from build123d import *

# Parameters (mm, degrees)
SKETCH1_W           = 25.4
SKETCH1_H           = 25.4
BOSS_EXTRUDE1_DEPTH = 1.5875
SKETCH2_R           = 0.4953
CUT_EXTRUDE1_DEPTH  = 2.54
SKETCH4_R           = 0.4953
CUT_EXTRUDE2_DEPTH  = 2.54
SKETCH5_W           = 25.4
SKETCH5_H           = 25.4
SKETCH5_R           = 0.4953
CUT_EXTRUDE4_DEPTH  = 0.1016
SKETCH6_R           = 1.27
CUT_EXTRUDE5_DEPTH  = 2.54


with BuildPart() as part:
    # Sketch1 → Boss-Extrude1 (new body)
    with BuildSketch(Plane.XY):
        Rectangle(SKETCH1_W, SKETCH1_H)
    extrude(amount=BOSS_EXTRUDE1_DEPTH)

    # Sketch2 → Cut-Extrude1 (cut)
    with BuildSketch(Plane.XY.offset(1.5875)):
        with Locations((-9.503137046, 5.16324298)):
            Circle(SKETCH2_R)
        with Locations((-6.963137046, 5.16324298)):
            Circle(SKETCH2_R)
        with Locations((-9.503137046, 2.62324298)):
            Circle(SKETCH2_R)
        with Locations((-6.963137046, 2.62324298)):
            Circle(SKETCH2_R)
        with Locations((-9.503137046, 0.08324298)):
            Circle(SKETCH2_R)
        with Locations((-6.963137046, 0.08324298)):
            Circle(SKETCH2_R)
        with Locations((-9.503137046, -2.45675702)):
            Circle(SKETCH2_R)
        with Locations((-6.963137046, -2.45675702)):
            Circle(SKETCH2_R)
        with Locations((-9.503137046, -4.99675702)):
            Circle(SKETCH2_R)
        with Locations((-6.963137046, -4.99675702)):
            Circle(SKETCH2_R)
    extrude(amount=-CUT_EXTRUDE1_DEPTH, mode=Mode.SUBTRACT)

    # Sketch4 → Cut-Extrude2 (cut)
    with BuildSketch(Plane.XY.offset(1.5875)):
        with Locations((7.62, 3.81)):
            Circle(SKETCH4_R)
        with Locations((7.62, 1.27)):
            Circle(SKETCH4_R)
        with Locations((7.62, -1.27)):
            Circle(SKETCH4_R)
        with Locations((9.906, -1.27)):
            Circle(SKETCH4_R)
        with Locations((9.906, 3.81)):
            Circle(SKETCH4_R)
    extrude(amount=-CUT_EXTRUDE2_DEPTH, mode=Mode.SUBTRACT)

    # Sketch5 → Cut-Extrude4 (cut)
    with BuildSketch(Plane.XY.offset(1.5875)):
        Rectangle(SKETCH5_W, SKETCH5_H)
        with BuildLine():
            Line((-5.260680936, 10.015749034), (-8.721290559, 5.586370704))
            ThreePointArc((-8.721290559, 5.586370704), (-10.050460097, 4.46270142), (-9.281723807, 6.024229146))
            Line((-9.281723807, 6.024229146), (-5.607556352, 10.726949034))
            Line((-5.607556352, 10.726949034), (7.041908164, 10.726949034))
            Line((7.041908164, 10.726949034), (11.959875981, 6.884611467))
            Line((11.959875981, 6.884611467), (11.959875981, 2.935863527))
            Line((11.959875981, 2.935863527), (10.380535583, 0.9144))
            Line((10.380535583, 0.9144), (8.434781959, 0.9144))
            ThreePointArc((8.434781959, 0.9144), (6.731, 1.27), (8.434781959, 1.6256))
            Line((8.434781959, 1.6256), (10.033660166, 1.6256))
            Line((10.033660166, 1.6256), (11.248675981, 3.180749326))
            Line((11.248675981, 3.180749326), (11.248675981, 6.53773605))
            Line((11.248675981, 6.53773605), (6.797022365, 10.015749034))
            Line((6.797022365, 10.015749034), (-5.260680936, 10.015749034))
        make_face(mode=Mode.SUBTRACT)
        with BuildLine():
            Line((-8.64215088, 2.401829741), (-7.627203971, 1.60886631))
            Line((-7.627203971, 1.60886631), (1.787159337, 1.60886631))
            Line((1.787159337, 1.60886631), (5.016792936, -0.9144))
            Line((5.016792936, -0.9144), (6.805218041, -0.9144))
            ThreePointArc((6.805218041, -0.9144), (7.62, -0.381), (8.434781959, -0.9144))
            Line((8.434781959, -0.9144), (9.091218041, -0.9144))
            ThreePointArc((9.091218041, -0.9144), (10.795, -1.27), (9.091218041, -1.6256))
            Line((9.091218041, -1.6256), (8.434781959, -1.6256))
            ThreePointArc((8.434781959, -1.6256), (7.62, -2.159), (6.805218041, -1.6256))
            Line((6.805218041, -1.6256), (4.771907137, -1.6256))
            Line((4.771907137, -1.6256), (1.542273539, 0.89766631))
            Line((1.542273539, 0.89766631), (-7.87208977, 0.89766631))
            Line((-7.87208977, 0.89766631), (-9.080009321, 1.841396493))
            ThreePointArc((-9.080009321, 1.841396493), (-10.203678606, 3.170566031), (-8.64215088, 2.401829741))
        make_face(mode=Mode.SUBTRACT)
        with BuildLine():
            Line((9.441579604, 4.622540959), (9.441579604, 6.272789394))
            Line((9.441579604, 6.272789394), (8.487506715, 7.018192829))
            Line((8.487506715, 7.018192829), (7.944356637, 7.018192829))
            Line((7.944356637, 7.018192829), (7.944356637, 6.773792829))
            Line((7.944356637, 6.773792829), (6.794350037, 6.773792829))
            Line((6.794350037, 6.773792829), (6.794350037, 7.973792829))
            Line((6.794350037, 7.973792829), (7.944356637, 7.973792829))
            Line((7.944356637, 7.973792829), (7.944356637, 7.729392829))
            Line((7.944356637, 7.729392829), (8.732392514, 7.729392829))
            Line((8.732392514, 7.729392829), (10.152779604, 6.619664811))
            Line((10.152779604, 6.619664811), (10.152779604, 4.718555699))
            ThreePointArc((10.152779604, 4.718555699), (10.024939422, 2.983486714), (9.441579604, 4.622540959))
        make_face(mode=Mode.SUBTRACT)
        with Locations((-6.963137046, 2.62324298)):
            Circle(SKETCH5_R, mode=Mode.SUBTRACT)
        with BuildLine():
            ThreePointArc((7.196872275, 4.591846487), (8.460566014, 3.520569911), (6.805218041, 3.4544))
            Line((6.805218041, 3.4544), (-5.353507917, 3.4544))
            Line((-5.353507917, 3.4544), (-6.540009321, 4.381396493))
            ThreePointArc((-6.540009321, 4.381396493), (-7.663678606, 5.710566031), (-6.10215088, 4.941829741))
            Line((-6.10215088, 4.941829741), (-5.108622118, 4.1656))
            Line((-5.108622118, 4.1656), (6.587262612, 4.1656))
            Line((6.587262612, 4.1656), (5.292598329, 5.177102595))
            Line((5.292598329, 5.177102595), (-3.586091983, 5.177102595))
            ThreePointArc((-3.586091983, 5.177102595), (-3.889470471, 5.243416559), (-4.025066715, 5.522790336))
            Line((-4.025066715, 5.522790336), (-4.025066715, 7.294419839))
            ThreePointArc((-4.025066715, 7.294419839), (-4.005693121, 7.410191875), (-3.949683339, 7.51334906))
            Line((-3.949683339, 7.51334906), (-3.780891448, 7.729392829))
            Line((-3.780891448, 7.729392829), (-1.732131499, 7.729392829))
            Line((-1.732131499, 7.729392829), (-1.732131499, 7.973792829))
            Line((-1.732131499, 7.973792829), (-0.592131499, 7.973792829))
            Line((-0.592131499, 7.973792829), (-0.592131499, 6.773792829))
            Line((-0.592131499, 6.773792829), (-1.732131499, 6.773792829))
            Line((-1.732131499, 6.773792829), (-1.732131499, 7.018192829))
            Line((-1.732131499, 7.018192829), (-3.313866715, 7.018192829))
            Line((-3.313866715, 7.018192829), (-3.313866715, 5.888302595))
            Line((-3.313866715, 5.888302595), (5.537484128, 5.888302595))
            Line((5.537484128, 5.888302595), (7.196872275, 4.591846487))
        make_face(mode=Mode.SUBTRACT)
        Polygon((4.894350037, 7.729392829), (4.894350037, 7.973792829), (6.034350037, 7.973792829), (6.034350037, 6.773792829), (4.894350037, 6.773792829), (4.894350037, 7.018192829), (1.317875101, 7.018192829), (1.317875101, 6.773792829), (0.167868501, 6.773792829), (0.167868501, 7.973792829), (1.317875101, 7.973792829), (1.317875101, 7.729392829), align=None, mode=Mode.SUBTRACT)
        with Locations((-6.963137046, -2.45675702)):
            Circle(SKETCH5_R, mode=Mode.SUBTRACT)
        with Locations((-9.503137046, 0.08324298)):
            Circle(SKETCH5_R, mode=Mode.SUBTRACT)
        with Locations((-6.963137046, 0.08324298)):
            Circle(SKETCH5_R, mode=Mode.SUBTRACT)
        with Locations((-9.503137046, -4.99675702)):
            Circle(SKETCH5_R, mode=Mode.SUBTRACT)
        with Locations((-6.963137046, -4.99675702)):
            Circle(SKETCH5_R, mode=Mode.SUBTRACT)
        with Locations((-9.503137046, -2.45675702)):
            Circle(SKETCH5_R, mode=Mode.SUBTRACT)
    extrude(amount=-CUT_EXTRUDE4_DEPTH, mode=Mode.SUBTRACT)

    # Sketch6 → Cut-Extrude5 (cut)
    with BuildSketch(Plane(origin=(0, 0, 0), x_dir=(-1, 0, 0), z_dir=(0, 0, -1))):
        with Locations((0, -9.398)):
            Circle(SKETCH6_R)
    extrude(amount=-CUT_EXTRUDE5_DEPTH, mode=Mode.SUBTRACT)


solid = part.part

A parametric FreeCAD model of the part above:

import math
import FreeCAD as App
import Part
import Sketcher

V = App.Vector
Q = App.Units.Quantity

doc = App.newDocument("Part")
body = doc.addObject("PartDesign::Body", "Body")

sketch1 = body.newObject("Sketcher::SketchObject", "Sketch")
sketch1.AttachmentSupport = (doc.getObject("XY_Plane"), [""])
sketch1.MapMode = "FlatFace"
sketch1.addGeometry(Part.LineSegment(V(-12.7, 12.7, 0), V(-12.7, -12.7, 0)), False)
sketch1.addGeometry(Part.LineSegment(V(-12.7, -12.7, 0), V(12.7, -12.7, 0)), False)
sketch1.addGeometry(Part.LineSegment(V(12.7, -12.7, 0), V(12.7, 12.7, 0)), False)
sketch1.addGeometry(Part.LineSegment(V(12.7, 12.7, 0), V(-12.7, 12.7, 0)), False)
sketch1.addConstraint(Sketcher.Constraint("Coincident", 0, 2, 1, 1))
sketch1.addConstraint(Sketcher.Constraint("Coincident", 1, 2, 2, 1))
sketch1.addConstraint(Sketcher.Constraint("Coincident", 2, 2, 3, 1))
sketch1.addConstraint(Sketcher.Constraint("Coincident", 3, 2, 0, 1))
sketch1.addConstraint(Sketcher.Constraint("Vertical", 0))
sketch1.addConstraint(Sketcher.Constraint("Horizontal", 1))
sketch1.addConstraint(Sketcher.Constraint("Vertical", 2))
sketch1.addConstraint(Sketcher.Constraint("Horizontal", 3))
sketch1.addConstraint(Sketcher.Constraint("Symmetric", 0, 2, 2, 2, -1, 1))
sketch1.addConstraint(Sketcher.Constraint("Equal", 3, 0))
sketch1.addConstraint(Sketcher.Constraint("DistanceX", 1, 1, 1, 2, Q("1 in")))
pad1 = body.newObject("PartDesign::Pad", "Pad")
pad1.Profile = sketch1
pad1.Length = Q("0.0625 in")

sketch2 = body.newObject("Sketcher::SketchObject", "Sketch001")
sketch2.AttachmentSupport = (doc.getObject("XY_Plane"), [""])
sketch2.MapMode = "FlatFace"
sketch2.AttachmentOffset = App.Placement(V(0, 0, 0.0625 * 25.4), App.Rotation())
sketch2.addGeometry(Part.Circle(V(-9.503137, 5.163243, 0), V(0, 0, 1), 0.4953), False)
sketch2.addGeometry(Part.Circle(V(-6.963137, 5.163243, 0), V(0, 0, 1), 0.4953), False)
sketch2.addGeometry(Part.Circle(V(-9.503137, 2.623243, 0), V(0, 0, 1), 0.4953), False)
sketch2.addGeometry(Part.Circle(V(-6.963137, 2.623243, 0), V(0, 0, 1), 0.4953), False)
sketch2.addGeometry(Part.Circle(V(-9.503137, 0.083243, 0), V(0, 0, 1), 0.4953), False)
sketch2.addGeometry(Part.Circle(V(-6.963137, 0.083243, 0), V(0, 0, 1), 0.4953), False)
sketch2.addGeometry(Part.Circle(V(-9.503137, -2.456757, 0), V(0, 0, 1), 0.4953), False)
sketch2.addGeometry(Part.Circle(V(-6.963137, -2.456757, 0), V(0, 0, 1), 0.4953), False)
sketch2.addGeometry(Part.Circle(V(-9.503137, -4.996757, 0), V(0, 0, 1), 0.4953), False)
sketch2.addGeometry(Part.Circle(V(-6.963137, -4.996757, 0), V(0, 0, 1), 0.4953), False)
sketch2.addConstraint(Sketcher.Constraint("Equal", 0, 1))
sketch2.addConstraint(Sketcher.Constraint("Equal", 1, 2))
sketch2.addConstraint(Sketcher.Constraint("Equal", 2, 3))
sketch2.addConstraint(Sketcher.Constraint("Equal", 3, 4))
sketch2.addConstraint(Sketcher.Constraint("Equal", 4, 5))
sketch2.addConstraint(Sketcher.Constraint("Equal", 5, 6))
sketch2.addConstraint(Sketcher.Constraint("Equal", 6, 7))
sketch2.addConstraint(Sketcher.Constraint("Equal", 7, 8))
sketch2.addConstraint(Sketcher.Constraint("Equal", 8, 9))
sketch2.addConstraint(Sketcher.Constraint("Horizontal", 0, 3, 1, 3))
sketch2.addConstraint(Sketcher.Constraint("Horizontal", 2, 3, 3, 3))
sketch2.addConstraint(Sketcher.Constraint("Horizontal", 4, 3, 5, 3))
sketch2.addConstraint(Sketcher.Constraint("Horizontal", 6, 3, 7, 3))
sketch2.addConstraint(Sketcher.Constraint("Horizontal", 8, 3, 9, 3))
sketch2.addConstraint(Sketcher.Constraint("Vertical", 0, 3, 2, 3))
sketch2.addConstraint(Sketcher.Constraint("Vertical", 1, 3, 3, 3))
sketch2.addConstraint(Sketcher.Constraint("Vertical", 2, 3, 4, 3))
sketch2.addConstraint(Sketcher.Constraint("Vertical", 3, 3, 5, 3))
sketch2.addConstraint(Sketcher.Constraint("Vertical", 4, 3, 6, 3))
sketch2.addConstraint(Sketcher.Constraint("Vertical", 5, 3, 7, 3))
sketch2.addConstraint(Sketcher.Constraint("Vertical", 6, 3, 8, 3))
sketch2.addConstraint(Sketcher.Constraint("Vertical", 7, 3, 9, 3))
sketch2.addConstraint(Sketcher.Constraint("Diameter", 0, Q("0.039 in")))
sketch2.addConstraint(Sketcher.Constraint("DistanceX", 0, 3, 1, 3, Q("0.1 in")))
sketch2.addConstraint(Sketcher.Constraint("DistanceY", 2, 3, 0, 3, Q("0.1 in")))
sketch2.addConstraint(Sketcher.Constraint("DistanceY", 4, 3, 2, 3, Q("0.1 in")))
sketch2.addConstraint(Sketcher.Constraint("DistanceY", 6, 3, 4, 3, Q("0.1 in")))
sketch2.addConstraint(Sketcher.Constraint("DistanceY", 8, 3, 6, 3, Q("0.1 in")))
sketch2.addConstraint(Sketcher.Constraint("DistanceX", 0, 3, -1, 1, Q("9.503137 mm")))
sketch2.addConstraint(Sketcher.Constraint("DistanceY", -1, 1, 0, 3, Q("5.163243 mm")))
pocket1 = body.newObject("PartDesign::Pocket", "Pocket")
pocket1.Profile = sketch2
pocket1.Length = Q("0.1 in")

sketch3 = body.newObject("Sketcher::SketchObject", "Sketch002")
sketch3.AttachmentSupport = (doc.getObject("XY_Plane"), [""])
sketch3.MapMode = "FlatFace"
sketch3.AttachmentOffset = App.Placement(V(0, 0, 0.0625 * 25.4), App.Rotation())
sketch3.addGeometry(Part.Circle(V(7.62, 3.81, 0), V(0, 0, 1), 0.4953), False)
sketch3.addGeometry(Part.Circle(V(7.62, 1.27, 0), V(0, 0, 1), 0.4953), False)
sketch3.addGeometry(Part.Circle(V(7.62, -1.27, 0), V(0, 0, 1), 0.4953), False)
sketch3.addGeometry(Part.Circle(V(9.906, -1.27, 0), V(0, 0, 1), 0.4953), False)
sketch3.addGeometry(Part.Circle(V(9.906, 3.81, 0), V(0, 0, 1), 0.4953), False)
sketch3.addConstraint(Sketcher.Constraint("Equal", 0, 1))
sketch3.addConstraint(Sketcher.Constraint("Equal", 1, 2))
sketch3.addConstraint(Sketcher.Constraint("Equal", 2, 3))
sketch3.addConstraint(Sketcher.Constraint("Equal", 3, 4))
sketch3.addConstraint(Sketcher.Constraint("Symmetric", 1, 3, 2, 3, -1))
sketch3.addConstraint(Sketcher.Constraint("Horizontal", 2, 3, 3, 3))
sketch3.addConstraint(Sketcher.Constraint("Horizontal", 0, 3, 4, 3))
sketch3.addConstraint(Sketcher.Constraint("Vertical", 0, 3, 1, 3))
sketch3.addConstraint(Sketcher.Constraint("Vertical", 3, 3, 4, 3))
sketch3.addConstraint(Sketcher.Constraint("Diameter", 0, Q("0.039 in")))
sketch3.addConstraint(Sketcher.Constraint("DistanceX", -1, 1, 0, 3, Q("0.3 in")))
sketch3.addConstraint(Sketcher.Constraint("DistanceY", 1, 3, 0, 3, Q("0.1 in")))
sketch3.addConstraint(Sketcher.Constraint("DistanceY", 2, 3, 1, 3, Q("0.1 in")))
sketch3.addConstraint(Sketcher.Constraint("DistanceX", -1, 1, 3, 3, Q("0.39 in")))
pocket2 = body.newObject("PartDesign::Pocket", "Pocket001")
pocket2.Profile = sketch3
pocket2.Length = Q("0.1 in")

sketch4 = body.newObject("Sketcher::SketchObject", "Sketch003")
sketch4.AttachmentSupport = (doc.getObject("XY_Plane"), [""])
sketch4.MapMode = "FlatFace"
sketch4.AttachmentOffset = App.Placement(V(0, 0, 0.0625 * 25.4), App.Rotation())
sketch4.addGeometry(Part.LineSegment(V(-12.7, 12.7, 0), V(-12.7, -12.7, 0)), False)
sketch4.addGeometry(Part.LineSegment(V(-12.7, -12.7, 0), V(12.7, -12.7, 0)), False)
sketch4.addGeometry(Part.LineSegment(V(12.7, -12.7, 0), V(12.7, 12.7, 0)), False)
sketch4.addGeometry(Part.LineSegment(V(12.7, 12.7, 0), V(-12.7, 12.7, 0)), False)
sketch4.addGeometry(Part.Circle(V(-9.503137, -4.996757, 0), V(0, 0, 1), 0.4953), False)
sketch4.addGeometry(Part.Circle(V(-6.963137, -4.996757, 0), V(0, 0, 1), 0.4953), False)
sketch4.addGeometry(Part.Circle(V(-9.503137, -2.456757, 0), V(0, 0, 1), 0.4953), False)
sketch4.addGeometry(Part.Circle(V(-6.963137, -2.456757, 0), V(0, 0, 1), 0.4953), False)
sketch4.addGeometry(Part.Circle(V(-9.503137, 0.083243, 0), V(0, 0, 1), 0.4953), False)
sketch4.addGeometry(Part.Circle(V(-6.963137, 0.083243, 0), V(0, 0, 1), 0.4953), False)
sketch4.addGeometry(Part.ArcOfCircle(Part.Circle(V(-9.503137, 2.623243, 0), V(0, 0, 1), 0.889), math.radians(-14.421822), math.radians(298.421822)), False)
sketch4.addGeometry(Part.LineSegment(V(-8.642151, 2.40183, 0), V(-7.627204, 1.608866, 0)), False)
sketch4.addGeometry(Part.LineSegment(V(-7.627204, 1.608866, 0), V(1.787159, 1.608866, 0)), False)
sketch4.addGeometry(Part.LineSegment(V(1.787159, 1.608866, 0), V(5.016793, -0.9144, 0)), False)
sketch4.addGeometry(Part.LineSegment(V(5.016793, -0.9144, 0), V(6.805218, -0.9144, 0)), False)
sketch4.addGeometry(Part.ArcOfCircle(Part.Circle(V(7.62, -1.27, 0), V(0, 0, 1), 0.889), math.radians(23.578179), math.radians(156.421821)), False)
sketch4.addGeometry(Part.LineSegment(V(8.434782, -0.9144, 0), V(9.091218, -0.9144, 0)), False)
sketch4.addGeometry(Part.ArcOfCircle(Part.Circle(V(9.906, -1.27, 0), V(0, 0, 1), 0.889), math.radians(-156.421822), math.radians(156.421822)), False)
sketch4.addGeometry(Part.LineSegment(V(9.091218, -1.6256, 0), V(8.434782, -1.6256, 0)), False)
sketch4.addGeometry(Part.ArcOfCircle(Part.Circle(V(7.62, -1.27, 0), V(0, 0, 1), 0.889), math.radians(-156.421821), math.radians(-23.578179)), False)
sketch4.addGeometry(Part.LineSegment(V(6.805218, -1.6256, 0), V(4.771907, -1.6256, 0)), False)
sketch4.addGeometry(Part.LineSegment(V(4.771907, -1.6256, 0), V(1.542274, 0.897666, 0)), False)
sketch4.addGeometry(Part.LineSegment(V(1.542274, 0.897666, 0), V(-7.87209, 0.897666, 0)), False)
sketch4.addGeometry(Part.LineSegment(V(-7.87209, 0.897666, 0), V(-9.080009, 1.841396, 0)), False)
sketch4.addGeometry(Part.Circle(V(-6.963137, 2.623243, 0), V(0, 0, 1), 0.4953), False)
sketch4.addGeometry(Part.LineSegment(V(5.537484, 5.888303, 0), V(7.196872, 4.591846, 0)), False)
sketch4.addGeometry(Part.ArcOfCircle(Part.Circle(V(7.62, 3.81, 0), V(0, 0, 1), 0.889), math.radians(-156.421822), math.radians(118.421822)), False)
sketch4.addGeometry(Part.LineSegment(V(6.805218, 3.4544, 0), V(-5.353508, 3.4544, 0)), False)
sketch4.addGeometry(Part.LineSegment(V(-5.353508, 3.4544, 0), V(-6.540009, 4.381396, 0)), False)
sketch4.addGeometry(Part.ArcOfCircle(Part.Circle(V(-6.963137, 5.163243, 0), V(0, 0, 1), 0.889), math.radians(-14.421822), math.radians(298.421822)), False)
sketch4.addGeometry(Part.LineSegment(V(-6.102151, 4.94183, 0), V(-5.108622, 4.1656, 0)), False)
sketch4.addGeometry(Part.LineSegment(V(-5.108622, 4.1656, 0), V(6.587263, 4.1656, 0)), False)
sketch4.addGeometry(Part.LineSegment(V(6.587263, 4.1656, 0), V(5.292598, 5.177103, 0)), False)
sketch4.addGeometry(Part.LineSegment(V(5.292598, 5.177103, 0), V(-3.586092, 5.177103, 0)), False)
sketch4.addGeometry(Part.ArcOfCircle(Part.Circle(V(-3.669467, 5.52279, 0), V(0, 0, 1), 0.3556), math.radians(180), math.radians(283.559919)), False)
sketch4.addGeometry(Part.LineSegment(V(-4.025067, 5.52279, 0), V(-4.025067, 7.29442, 0)), False)
sketch4.addGeometry(Part.ArcOfCircle(Part.Circle(V(-3.669467, 7.29442, 0), V(0, 0, 1), 0.3556), math.radians(142), math.radians(180)), False)
sketch4.addGeometry(Part.LineSegment(V(-3.949683, 7.513349, 0), V(-3.780891, 7.729393, 0)), False)
sketch4.addGeometry(Part.LineSegment(V(-3.780891, 7.729393, 0), V(-1.732131, 7.729393, 0)), False)
sketch4.addGeometry(Part.LineSegment(V(-1.732131, 7.729393, 0), V(-1.732131, 7.973793, 0)), False)
sketch4.addGeometry(Part.LineSegment(V(-1.732131, 7.973793, 0), V(-0.592131, 7.973793, 0)), False)
sketch4.addGeometry(Part.LineSegment(V(-0.592131, 7.973793, 0), V(-0.592131, 6.773793, 0)), False)
sketch4.addGeometry(Part.LineSegment(V(-0.592131, 6.773793, 0), V(-1.732131, 6.773793, 0)), False)
sketch4.addGeometry(Part.LineSegment(V(-1.732131, 6.773793, 0), V(-1.732131, 7.018193, 0)), False)
sketch4.addGeometry(Part.LineSegment(V(-1.732131, 7.018193, 0), V(-3.313867, 7.018193, 0)), False)
sketch4.addGeometry(Part.LineSegment(V(-3.313867, 7.018193, 0), V(-3.313867, 5.888303, 0)), False)
sketch4.addGeometry(Part.LineSegment(V(-3.313867, 5.888303, 0), V(5.537484, 5.888303, 0)), False)
sketch4.addGeometry(Part.LineSegment(V(6.797022, 10.015749, 0), V(-5.260681, 10.015749, 0)), False)
sketch4.addGeometry(Part.LineSegment(V(-5.260681, 10.015749, 0), V(-8.721291, 5.586371, 0)), False)
sketch4.addGeometry(Part.ArcOfCircle(Part.Circle(V(-9.503137, 5.163243, 0), V(0, 0, 1), 0.889), math.radians(75.578178), math.radians(388.421821)), False)
sketch4.addGeometry(Part.LineSegment(V(-9.281724, 6.024229, 0), V(-5.607556, 10.726949, 0)), False)
sketch4.addGeometry(Part.LineSegment(V(-5.607556, 10.726949, 0), V(7.041908, 10.726949, 0)), False)
sketch4.addGeometry(Part.LineSegment(V(7.041908, 10.726949, 0), V(11.959876, 6.884611, 0)), False)
sketch4.addGeometry(Part.LineSegment(V(11.959876, 6.884611, 0), V(11.959876, 2.935864, 0)), False)
sketch4.addGeometry(Part.LineSegment(V(11.959876, 2.935864, 0), V(10.380536, 0.9144, 0)), False)
sketch4.addGeometry(Part.LineSegment(V(10.380536, 0.9144, 0), V(8.434782, 0.9144, 0)), False)
sketch4.addGeometry(Part.ArcOfCircle(Part.Circle(V(7.62, 1.27, 0), V(0, 0, 1), 0.889), math.radians(23.578178), math.radians(336.421822)), False)
sketch4.addGeometry(Part.LineSegment(V(8.434782, 1.6256, 0), V(10.03366, 1.6256, 0)), False)
sketch4.addGeometry(Part.LineSegment(V(10.03366, 1.6256, 0), V(11.248676, 3.180749, 0)), False)
sketch4.addGeometry(Part.LineSegment(V(11.248676, 3.180749, 0), V(11.248676, 6.537736, 0)), False)
sketch4.addGeometry(Part.LineSegment(V(11.248676, 6.537736, 0), V(6.797022, 10.015749, 0)), False)
sketch4.addGeometry(Part.ArcOfCircle(Part.Circle(V(9.906, 3.864494, 0), V(0, 0, 1), 0.889), math.radians(121.493891), math.radians(433.883439)), False)
sketch4.addGeometry(Part.LineSegment(V(9.44158, 4.622541, 0), V(9.44158, 6.272789, 0)), False)
sketch4.addGeometry(Part.LineSegment(V(9.44158, 6.272789, 0), V(8.487507, 7.018193, 0)), False)
sketch4.addGeometry(Part.LineSegment(V(8.487507, 7.018193, 0), V(7.944357, 7.018193, 0)), False)
sketch4.addGeometry(Part.LineSegment(V(7.944357, 7.018193, 0), V(7.944357, 6.773793, 0)), False)
sketch4.addGeometry(Part.LineSegment(V(7.944357, 6.773793, 0), V(6.79435, 6.773793, 0)), False)
sketch4.addGeometry(Part.LineSegment(V(6.79435, 6.773793, 0), V(6.79435, 7.973793, 0)), False)
sketch4.addGeometry(Part.LineSegment(V(6.79435, 7.973793, 0), V(7.944357, 7.973793, 0)), False)
sketch4.addGeometry(Part.LineSegment(V(7.944357, 7.973793, 0), V(7.944357, 7.729393, 0)), False)
sketch4.addGeometry(Part.LineSegment(V(7.944357, 7.729393, 0), V(8.732393, 7.729393, 0)), False)
sketch4.addGeometry(Part.LineSegment(V(8.732393, 7.729393, 0), V(10.15278, 6.619665, 0)), False)
sketch4.addGeometry(Part.LineSegment(V(10.15278, 6.619665, 0), V(10.15278, 4.718556, 0)), False)
sketch4.addGeometry(Part.LineSegment(V(1.317875, 7.729393, 0), V(4.89435, 7.729393, 0)), False)
sketch4.addGeometry(Part.LineSegment(V(4.89435, 7.729393, 0), V(4.89435, 7.973793, 0)), False)
sketch4.addGeometry(Part.LineSegment(V(4.89435, 7.973793, 0), V(6.03435, 7.973793, 0)), False)
sketch4.addGeometry(Part.LineSegment(V(6.03435, 7.973793, 0), V(6.03435, 6.773793, 0)), False)
sketch4.addGeometry(Part.LineSegment(V(6.03435, 6.773793, 0), V(4.89435, 6.773793, 0)), False)
sketch4.addGeometry(Part.LineSegment(V(4.89435, 6.773793, 0), V(4.89435, 7.018193, 0)), False)
sketch4.addGeometry(Part.LineSegment(V(4.89435, 7.018193, 0), V(1.317875, 7.018193, 0)), False)
sketch4.addGeometry(Part.LineSegment(V(1.317875, 7.018193, 0), V(1.317875, 6.773793, 0)), False)
sketch4.addGeometry(Part.LineSegment(V(1.317875, 6.773793, 0), V(0.167869, 6.773793, 0)), False)
sketch4.addGeometry(Part.LineSegment(V(0.167869, 6.773793, 0), V(0.167869, 7.973793, 0)), False)
sketch4.addGeometry(Part.LineSegment(V(0.167869, 7.973793, 0), V(1.317875, 7.973793, 0)), False)
sketch4.addGeometry(Part.LineSegment(V(1.317875, 7.973793, 0), V(1.317875, 7.729393, 0)), False)
sketch4.addConstraint(Sketcher.Constraint("Coincident", 0, 2, 1, 1))
sketch4.addConstraint(Sketcher.Constraint("Coincident", 1, 2, 2, 1))
sketch4.addConstraint(Sketcher.Constraint("Coincident", 2, 2, 3, 1))
sketch4.addConstraint(Sketcher.Constraint("Coincident", 3, 2, 0, 1))
sketch4.addConstraint(Sketcher.Constraint("Coincident", 10, 1, 11, 1))
sketch4.addConstraint(Sketcher.Constraint("Coincident", 11, 2, 12, 1))
sketch4.addConstraint(Sketcher.Constraint("Coincident", 12, 2, 13, 1))
sketch4.addConstraint(Sketcher.Constraint("Coincident", 13, 2, 14, 1))
sketch4.addConstraint(Sketcher.Constraint("Coincident", 14, 2, 15, 2))
sketch4.addConstraint(Sketcher.Constraint("Coincident", 15, 1, 16, 1))
sketch4.addConstraint(Sketcher.Constraint("Coincident", 16, 2, 17, 2))
sketch4.addConstraint(Sketcher.Constraint("Coincident", 17, 1, 18, 1))
sketch4.addConstraint(Sketcher.Constraint("Coincident", 18, 2, 19, 2))
sketch4.addConstraint(Sketcher.Constraint("Coincident", 19, 1, 20, 1))
sketch4.addConstraint(Sketcher.Constraint("Coincident", 20, 2, 21, 1))
sketch4.addConstraint(Sketcher.Constraint("Coincident", 21, 2, 22, 1))
sketch4.addConstraint(Sketcher.Constraint("Coincident", 22, 2, 23, 1))
sketch4.addConstraint(Sketcher.Constraint("Coincident", 23, 2, 10, 2))
sketch4.addConstraint(Sketcher.Constraint("Coincident", 25, 2, 26, 2))
sketch4.addConstraint(Sketcher.Constraint("Coincident", 26, 1, 27, 1))
sketch4.addConstraint(Sketcher.Constraint("Coincident", 27, 2, 28, 1))
sketch4.addConstraint(Sketcher.Constraint("Coincident", 28, 2, 29, 2))
sketch4.addConstraint(Sketcher.Constraint("Coincident", 29, 1, 30, 1))
sketch4.addConstraint(Sketcher.Constraint("Coincident", 30, 2, 31, 1))
sketch4.addConstraint(Sketcher.Constraint("Coincident", 31, 2, 32, 1))
sketch4.addConstraint(Sketcher.Constraint("Coincident", 32, 2, 33, 1))
sketch4.addConstraint(Sketcher.Constraint("Coincident", 33, 2, 34, 2))
sketch4.addConstraint(Sketcher.Constraint("Tangent", 34, 1, 35, 1))
sketch4.addConstraint(Sketcher.Constraint("Tangent", 35, 2, 36, 2))
sketch4.addConstraint(Sketcher.Constraint("Tangent", 36, 1, 37, 1))
sketch4.addConstraint(Sketcher.Constraint("Coincident", 37, 2, 38, 1))
sketch4.addConstraint(Sketcher.Constraint("Coincident", 38, 2, 39, 1))
sketch4.addConstraint(Sketcher.Constraint("Coincident", 39, 2, 40, 1))
sketch4.addConstraint(Sketcher.Constraint("Coincident", 40, 2, 41, 1))
sketch4.addConstraint(Sketcher.Constraint("Coincident", 41, 2, 42, 1))
sketch4.addConstraint(Sketcher.Constraint("Coincident", 42, 2, 43, 1))
sketch4.addConstraint(Sketcher.Constraint("Coincident", 43, 2, 44, 1))
sketch4.addConstraint(Sketcher.Constraint("Coincident", 44, 2, 45, 1))
sketch4.addConstraint(Sketcher.Constraint("Coincident", 45, 2, 46, 1))
sketch4.addConstraint(Sketcher.Constraint("Coincident", 46, 2, 25, 1))
sketch4.addConstraint(Sketcher.Constraint("Coincident", 47, 2, 48, 1))
sketch4.addConstraint(Sketcher.Constraint("Coincident", 48, 2, 49, 2))
sketch4.addConstraint(Sketcher.Constraint("Coincident", 49, 1, 50, 1))
sketch4.addConstraint(Sketcher.Constraint("Coincident", 50, 2, 51, 1))
sketch4.addConstraint(Sketcher.Constraint("Coincident", 51, 2, 52, 1))
sketch4.addConstraint(Sketcher.Constraint("Coincident", 52, 2, 53, 1))
sketch4.addConstraint(Sketcher.Constraint("Coincident", 53, 2, 54, 1))
sketch4.addConstraint(Sketcher.Constraint("Coincident", 54, 2, 55, 1))
sketch4.addConstraint(Sketcher.Constraint("Coincident", 55, 2, 56, 2))
sketch4.addConstraint(Sketcher.Constraint("Coincident", 56, 1, 57, 1))
sketch4.addConstraint(Sketcher.Constraint("Coincident", 57, 2, 58, 1))
sketch4.addConstraint(Sketcher.Constraint("Coincident", 58, 2, 59, 1))
sketch4.addConstraint(Sketcher.Constraint("Coincident", 59, 2, 60, 1))
sketch4.addConstraint(Sketcher.Constraint("Coincident", 60, 2, 47, 1))
sketch4.addConstraint(Sketcher.Constraint("Coincident", 61, 1, 62, 1))
sketch4.addConstraint(Sketcher.Constraint("Coincident", 62, 2, 63, 1))
sketch4.addConstraint(Sketcher.Constraint("Coincident", 63, 2, 64, 1))
sketch4.addConstraint(Sketcher.Constraint("Coincident", 64, 2, 65, 1))
sketch4.addConstraint(Sketcher.Constraint("Coincident", 65, 2, 66, 1))
sketch4.addConstraint(Sketcher.Constraint("Coincident", 66, 2, 67, 1))
sketch4.addConstraint(Sketcher.Constraint("Coincident", 67, 2, 68, 1))
sketch4.addConstraint(Sketcher.Constraint("Coincident", 68, 2, 69, 1))
sketch4.addConstraint(Sketcher.Constraint("Coincident", 69, 2, 70, 1))
sketch4.addConstraint(Sketcher.Constraint("Coincident", 70, 2, 71, 1))
sketch4.addConstraint(Sketcher.Constraint("Coincident", 71, 2, 72, 1))
sketch4.addConstraint(Sketcher.Constraint("Coincident", 72, 2, 61, 2))
sketch4.addConstraint(Sketcher.Constraint("Coincident", 73, 2, 74, 1))
sketch4.addConstraint(Sketcher.Constraint("Coincident", 74, 2, 75, 1))
sketch4.addConstraint(Sketcher.Constraint("Coincident", 75, 2, 76, 1))
sketch4.addConstraint(Sketcher.Constraint("Coincident", 76, 2, 77, 1))
sketch4.addConstraint(Sketcher.Constraint("Coincident", 77, 2, 78, 1))
sketch4.addConstraint(Sketcher.Constraint("Coincident", 78, 2, 79, 1))
sketch4.addConstraint(Sketcher.Constraint("Coincident", 79, 2, 80, 1))
sketch4.addConstraint(Sketcher.Constraint("Coincident", 80, 2, 81, 1))
sketch4.addConstraint(Sketcher.Constraint("Coincident", 81, 2, 82, 1))
sketch4.addConstraint(Sketcher.Constraint("Coincident", 82, 2, 83, 1))
sketch4.addConstraint(Sketcher.Constraint("Coincident", 83, 2, 84, 1))
sketch4.addConstraint(Sketcher.Constraint("Coincident", 84, 2, 73, 1))
sketch4.addConstraint(Sketcher.Constraint("Vertical", 0))
sketch4.addConstraint(Sketcher.Constraint("Horizontal", 1))
sketch4.addConstraint(Sketcher.Constraint("Vertical", 2))
sketch4.addConstraint(Sketcher.Constraint("Horizontal", 3))
sketch4.addConstraint(Sketcher.Constraint("Horizontal", 12))
sketch4.addConstraint(Sketcher.Constraint("Horizontal", 14))
sketch4.addConstraint(Sketcher.Constraint("Horizontal", 16))
sketch4.addConstraint(Sketcher.Constraint("Horizontal", 18))
sketch4.addConstraint(Sketcher.Constraint("Horizontal", 20))
sketch4.addConstraint(Sketcher.Constraint("Horizontal", 22))
sketch4.addConstraint(Sketcher.Constraint("Horizontal", 27))
sketch4.addConstraint(Sketcher.Constraint("Horizontal", 31))
sketch4.addConstraint(Sketcher.Constraint("Horizontal", 33))
sketch4.addConstraint(Sketcher.Constraint("Vertical", 35))
sketch4.addConstraint(Sketcher.Constraint("Horizontal", 38))
sketch4.addConstraint(Sketcher.Constraint("Vertical", 39))
sketch4.addConstraint(Sketcher.Constraint("Horizontal", 40))
sketch4.addConstraint(Sketcher.Constraint("Vertical", 41))
sketch4.addConstraint(Sketcher.Constraint("Horizontal", 42))
sketch4.addConstraint(Sketcher.Constraint("Vertical", 43))
sketch4.addConstraint(Sketcher.Constraint("Horizontal", 44))
sketch4.addConstraint(Sketcher.Constraint("Vertical", 45))
sketch4.addConstraint(Sketcher.Constraint("Horizontal", 46))
sketch4.addConstraint(Sketcher.Constraint("Horizontal", 47))
sketch4.addConstraint(Sketcher.Constraint("Horizontal", 51))
sketch4.addConstraint(Sketcher.Constraint("Vertical", 53))
sketch4.addConstraint(Sketcher.Constraint("Horizontal", 55))
sketch4.addConstraint(Sketcher.Constraint("Horizontal", 57))
sketch4.addConstraint(Sketcher.Constraint("Vertical", 59))
sketch4.addConstraint(Sketcher.Constraint("Vertical", 62))
sketch4.addConstraint(Sketcher.Constraint("Horizontal", 64))
sketch4.addConstraint(Sketcher.Constraint("Vertical", 65))
sketch4.addConstraint(Sketcher.Constraint("Horizontal", 66))
sketch4.addConstraint(Sketcher.Constraint("Vertical", 67))
sketch4.addConstraint(Sketcher.Constraint("Horizontal", 68))
sketch4.addConstraint(Sketcher.Constraint("Vertical", 69))
sketch4.addConstraint(Sketcher.Constraint("Horizontal", 70))
sketch4.addConstraint(Sketcher.Constraint("Vertical", 72))
sketch4.addConstraint(Sketcher.Constraint("Horizontal", 73))
sketch4.addConstraint(Sketcher.Constraint("Vertical", 74))
sketch4.addConstraint(Sketcher.Constraint("Horizontal", 75))
sketch4.addConstraint(Sketcher.Constraint("Vertical", 76))
sketch4.addConstraint(Sketcher.Constraint("Horizontal", 77))
sketch4.addConstraint(Sketcher.Constraint("Vertical", 78))
sketch4.addConstraint(Sketcher.Constraint("Horizontal", 79))
sketch4.addConstraint(Sketcher.Constraint("Vertical", 80))
sketch4.addConstraint(Sketcher.Constraint("Horizontal", 81))
sketch4.addConstraint(Sketcher.Constraint("Vertical", 82))
sketch4.addConstraint(Sketcher.Constraint("Horizontal", 83))
sketch4.addConstraint(Sketcher.Constraint("Vertical", 84))
sketch4.addConstraint(Sketcher.Constraint("Coincident", 19, 3, 15, 3))
sketch4.addConstraint(Sketcher.Constraint("Equal", 4, 5))
sketch4.addConstraint(Sketcher.Constraint("Equal", 5, 6))
sketch4.addConstraint(Sketcher.Constraint("Equal", 6, 7))
sketch4.addConstraint(Sketcher.Constraint("Equal", 7, 8))
sketch4.addConstraint(Sketcher.Constraint("Equal", 8, 9))
sketch4.addConstraint(Sketcher.Constraint("Equal", 10, 15))
sketch4.addConstraint(Sketcher.Constraint("Equal", 15, 17))
sketch4.addConstraint(Sketcher.Constraint("Equal", 17, 19))
sketch4.addConstraint(Sketcher.Constraint("Equal", 9, 24))
sketch4.addConstraint(Sketcher.Constraint("Equal", 19, 26))
sketch4.addConstraint(Sketcher.Constraint("Equal", 26, 29))
sketch4.addConstraint(Sketcher.Constraint("Equal", 34, 36))
sketch4.addConstraint(Sketcher.Constraint("Equal", 29, 49))
sketch4.addConstraint(Sketcher.Constraint("Equal", 49, 56))
sketch4.addConstraint(Sketcher.Constraint("Equal", 56, 61))
sketch4.addConstraint(Sketcher.Constraint("Symmetric", 0, 2, 2, 2, -1, 1))
sketch4.addConstraint(Sketcher.Constraint("Symmetric", 15, 3, 56, 3, -1))
sketch4.addConstraint(Sketcher.Constraint("Parallel", 11, 13))
sketch4.addConstraint(Sketcher.Constraint("Parallel", 13, 21))
sketch4.addConstraint(Sketcher.Constraint("Parallel", 21, 23))
sketch4.addConstraint(Sketcher.Constraint("Parallel", 23, 25))
sketch4.addConstraint(Sketcher.Constraint("Parallel", 25, 28))
sketch4.addConstraint(Sketcher.Constraint("Parallel", 28, 30))
sketch4.addConstraint(Sketcher.Constraint("Parallel", 30, 32))
sketch4.addConstraint(Sketcher.Constraint("Perpendicular", 32, 37))
sketch4.addConstraint(Sketcher.Constraint("Parallel", 37, 48))
sketch4.addConstraint(Sketcher.Constraint("Parallel", 48, 50))
sketch4.addConstraint(Sketcher.Constraint("Perpendicular", 50, 52))
sketch4.addConstraint(Sketcher.Constraint("Perpendicular", 52, 54))
sketch4.addConstraint(Sketcher.Constraint("Parallel", 54, 58))
sketch4.addConstraint(Sketcher.Constraint("Perpendicular", 58, 60))
sketch4.addConstraint(Sketcher.Constraint("Parallel", 60, 63))
sketch4.addConstraint(Sketcher.Constraint("Parallel", 63, 71))
sketch4.addConstraint(Sketcher.Constraint("Horizontal", 4, 3, 5, 3))
sketch4.addConstraint(Sketcher.Constraint("Horizontal", 6, 3, 7, 3))
sketch4.addConstraint(Sketcher.Constraint("Horizontal", 8, 3, 9, 3))
sketch4.addConstraint(Sketcher.Constraint("Horizontal", 15, 3, 17, 3))
sketch4.addConstraint(Sketcher.Constraint("Horizontal", 10, 3, 24, 3))
sketch4.addConstraint(Sketcher.Constraint("Horizontal", 29, 3, 49, 3))
sketch4.addConstraint(Sketcher.Constraint("Horizontal", 14, 2, 15, 1))
sketch4.addConstraint(Sketcher.Constraint("Horizontal", 18, 2, 19, 1))
sketch4.addConstraint(Sketcher.Constraint("Horizontal", 44, 2, 63, 2))
sketch4.addConstraint(Sketcher.Constraint("Horizontal", 42, 2, 65, 2))
sketch4.addConstraint(Sketcher.Constraint("Horizontal", 40, 2, 67, 2))
sketch4.addConstraint(Sketcher.Constraint("Horizontal", 38, 2, 69, 2))
sketch4.addConstraint(Sketcher.Constraint("Horizontal", 70, 2, 73, 2))
sketch4.addConstraint(Sketcher.Constraint("Horizontal", 68, 2, 74, 2))
sketch4.addConstraint(Sketcher.Constraint("Horizontal", 66, 2, 76, 2))
sketch4.addConstraint(Sketcher.Constraint("Horizontal", 64, 2, 78, 2))
sketch4.addConstraint(Sketcher.Constraint("Horizontal", 77, 2, 80, 2))
sketch4.addConstraint(Sketcher.Constraint("Horizontal", 75, 2, 82, 2))
sketch4.addConstraint(Sketcher.Constraint("Vertical", 4, 3, 6, 3))
sketch4.addConstraint(Sketcher.Constraint("Vertical", 5, 3, 7, 3))
sketch4.addConstraint(Sketcher.Constraint("Vertical", 6, 3, 8, 3))
sketch4.addConstraint(Sketcher.Constraint("Vertical", 7, 3, 9, 3))
sketch4.addConstraint(Sketcher.Constraint("Vertical", 8, 3, 10, 3))
sketch4.addConstraint(Sketcher.Constraint("Vertical", 9, 3, 24, 3))
sketch4.addConstraint(Sketcher.Constraint("Vertical", 19, 3, 26, 3))
sketch4.addConstraint(Sketcher.Constraint("Vertical", 24, 3, 29, 3))
sketch4.addConstraint(Sketcher.Constraint("Vertical", 10, 3, 49, 3))
sketch4.addConstraint(Sketcher.Constraint("Vertical", 17, 3, 61, 3))
sketch4.addConstraint(Sketcher.Constraint("Vertical", 16, 2, 17, 1))
sketch4.addConstraint(Sketcher.Constraint("Vertical", 19, 1, 26, 1))
sketch4.addConstraint(Sketcher.Constraint("Vertical", 39, 2, 42, 2))
sketch4.addConstraint(Sketcher.Constraint("Vertical", 18, 2, 55, 2))
sketch4.addConstraint(Sketcher.Constraint("Vertical", 55, 2, 56, 1))
sketch4.addConstraint(Sketcher.Constraint("Vertical", 65, 2, 68, 2))
sketch4.addConstraint(Sketcher.Constraint("Vertical", 74, 2, 77, 2))
sketch4.addConstraint(Sketcher.Constraint("Vertical", 80, 2, 83, 2))
sketch4.addConstraint(Sketcher.Constraint("Equal", 12, 22))
sketch4.addConstraint(Sketcher.Constraint("Equal", 42, 75))
sketch4.addConstraint(Sketcher.Constraint("Equal", 68, 81))
sketch4.addConstraint(Sketcher.Constraint("Equal", 3, 0))
sketch4.addConstraint(Sketcher.Constraint("Equal", 39, 43))
sketch4.addConstraint(Sketcher.Constraint("Equal", 13, 21))
sketch4.addConstraint(Sketcher.Constraint("DistanceX", 1, 1, 1, 2, Q("1 in")))
sketch4.addConstraint(Sketcher.Constraint("Diameter", 4, Q("0.039 in")))
sketch4.addConstraint(Sketcher.Constraint("Angle", 11, Q("-38 deg")))
sketch4.addConstraint(Sketcher.Constraint("Radius", 10, Q("0.035 in")))
sketch4.addConstraint(Sketcher.Constraint("Radius", 34, Q("0.014 in")))
sketch4.addConstraint(Sketcher.Constraint("DistanceX", -1, 1, 15, 3, Q("0.3 in")))
sketch4.addConstraint(Sketcher.Constraint("DistanceY", 15, 3, -1, 1, Q("0.05 in")))
sketch4.addConstraint(Sketcher.Constraint("DistanceX", -1, 1, 17, 3, Q("0.39 in")))
sketch4.addConstraint(Sketcher.Constraint("DistanceY", -1, 1, 26, 3, Q("0.15 in")))
sketch4.addConstraint(Sketcher.Constraint("DistanceY", 13, 2, -1, 1, Q("0.036 in")))
sketch4.addConstraint(Sketcher.Constraint("DistanceY", -1, 1, 30, 2, Q("0.164 in")))
sketch4.addConstraint(Sketcher.Constraint("DistanceX", 40, 1, 40, 2, Q("1.14 mm")))
sketch4.addConstraint(Sketcher.Constraint("DistanceY", 39, 1, 39, 2, Q("0.2444 mm")))
sketch4.addConstraint(Sketcher.Constraint("DistanceY", 41, 2, 41, 1, Q("1.2 mm")))
sketch4.addConstraint(Sketcher.Constraint("DistanceX", 20, 2, 20, 1, Q("2.033311 mm")))
sketch4.addConstraint(Sketcher.Constraint("DistanceX", 33, 2, 33, 1, Q("8.87869 mm")))
sketch4.addConstraint(Sketcher.Constraint("DistanceX", 38, 1, 38, 2, Q("2.04876 mm")))
sketch4.addConstraint(Sketcher.Constraint("DistanceX", 46, 1, 46, 2, Q("8.851351 mm")))
sketch4.addConstraint(Sketcher.Constraint("DistanceX", 57, 1, 57, 2, Q("1.598878 mm")))
sketch4.addConstraint(Sketcher.Constraint("DistanceX", 64, 2, 64, 1, Q("0.54315 mm")))
sketch4.addConstraint(Sketcher.Constraint("DistanceY", 35, 1, 35, 2, Q("1.77163 mm")))
sketch4.addConstraint(Sketcher.Constraint("DistanceY", 45, 2, 45, 1, Q("1.12989 mm")))
sketch4.addConstraint(Sketcher.Constraint("DistanceY", 62, 1, 62, 2, Q("1.650248 mm")))
sketch4.addConstraint(Sketcher.Constraint("DistanceY", 72, 2, 72, 1, Q("1.901109 mm")))
sketch4.addConstraint(Sketcher.Constraint("DistanceX", -1, 1, 32, 2, Q("5.292598 mm")))
sketch4.addConstraint(Sketcher.Constraint("Distance", 23, Q("1.532872 mm")))
sketch4.addConstraint(Sketcher.Constraint("Distance", 28, Q("1.505692 mm")))
sketch4.addConstraint(Sketcher.Constraint("Distance", 48, Q("5.620962 mm")))
sketch4.addConstraint(Sketcher.Constraint("Distance", 52, Q("6.240991 mm")))
sketch4.addConstraint(Sketcher.Constraint("Distance", 60, Q("5.64923 mm")))
sketch4.addConstraint(Sketcher.Constraint("DistanceX", 12, 1, 12, 2, Q("9.414363 mm")))
sketch4.addConstraint(Sketcher.Constraint("DistanceX", 14, 1, 14, 2, Q("1.788425 mm")))
sketch4.addConstraint(Sketcher.Constraint("DistanceX", 27, 2, 27, 1, Q("12.158726 mm")))
sketch4.addConstraint(Sketcher.Constraint("DistanceX", 31, 1, 31, 2, Q("11.695885 mm")))
sketch4.addConstraint(Sketcher.Constraint("DistanceX", 44, 2, 44, 1, Q("1.581735 mm")))
sketch4.addConstraint(Sketcher.Constraint("DistanceX", 47, 2, 47, 1, Q("12.057703 mm")))
sketch4.addConstraint(Sketcher.Constraint("DistanceX", 51, 1, 51, 2, Q("12.649465 mm")))
sketch4.addConstraint(Sketcher.Constraint("DistanceX", 55, 2, 55, 1, Q("1.945754 mm")))
sketch4.addConstraint(Sketcher.Constraint("DistanceX", 66, 2, 66, 1, Q("1.150007 mm")))
sketch4.addConstraint(Sketcher.Constraint("DistanceX", 70, 1, 70, 2, Q("0.788036 mm")))
sketch4.addConstraint(Sketcher.Constraint("DistanceX", 73, 1, 73, 2, Q("3.576475 mm")))
sketch4.addConstraint(Sketcher.Constraint("DistanceY", 53, 2, 53, 1, Q("3.948748 mm")))
sketch4.addConstraint(Sketcher.Constraint("DistanceY", 59, 1, 59, 2, Q("3.356987 mm")))
sketch4.addConstraint(Sketcher.Constraint("DistanceY", -1, 1, 34, 3, Q("5.52279 mm")))
sketch4.addConstraint(Sketcher.Constraint("DistanceX", 10, 1, -1, 1, Q("8.642151 mm")))
sketch4.addConstraint(Sketcher.Constraint("DistanceX", -1, 1, 12, 2, Q("1.787159 mm")))
sketch4.addConstraint(Sketcher.Constraint("DistanceX", 29, 1, -1, 1, Q("6.102151 mm")))
sketch4.addConstraint(Sketcher.Constraint("DistanceY", -1, 1, 29, 1, Q("4.94183 mm")))
sketch4.addConstraint(Sketcher.Constraint("DistanceX", 37, 2, -1, 1, Q("3.780891 mm")))
sketch4.addConstraint(Sketcher.Constraint("DistanceY", -1, 1, 50, 2, Q("10.726949 mm")))
sketch4.addConstraint(Sketcher.Constraint("DistanceX", -1, 1, 61, 1, Q("9.44158 mm")))
sketch4.addConstraint(Sketcher.Constraint("DistanceY", -1, 1, 61, 1, Q("4.622541 mm")))
sketch4.addConstraint(Sketcher.Constraint("DistanceX", -1, 1, 73, 2, Q("4.89435 mm")))
sketch4.addConstraint(Sketcher.Constraint("DistanceY", 4, 3, -1, 1, Q("4.996757 mm")))
sketch4.addConstraint(Sketcher.Constraint("DistanceY", 6, 3, -1, 1, Q("2.456757 mm")))
sketch4.addConstraint(Sketcher.Constraint("DistanceY", -1, 1, 8, 3, Q("0.083243 mm")))
pocket3 = body.newObject("PartDesign::Pocket", "Pocket002")
pocket3.Profile = sketch4
pocket3.Length = Q("0.004 in")

sketch5 = body.newObject("Sketcher::SketchObject", "Sketch004")
sketch5.AttachmentSupport = (doc.getObject("XY_Plane"), [""])
sketch5.MapMode = "FlatFace"
sketch5.addGeometry(Part.Circle(V(0, -9.398, 0), V(0, 0, 1), 1.27), False)
sketch5.addConstraint(Sketcher.Constraint("PointOnObject", 0, 3, -2))
sketch5.addConstraint(Sketcher.Constraint("Diameter", 0, Q("0.1 in")))
sketch5.addConstraint(Sketcher.Constraint("DistanceY", 0, 3, -1, 1, Q("0.37 in")))
pocket4 = body.newObject("PartDesign::Pocket", "Pocket003")
pocket4.Profile = sketch5
pocket4.Length = Q("0.1 in")
pocket4.Reversed = True

doc.recompute()
